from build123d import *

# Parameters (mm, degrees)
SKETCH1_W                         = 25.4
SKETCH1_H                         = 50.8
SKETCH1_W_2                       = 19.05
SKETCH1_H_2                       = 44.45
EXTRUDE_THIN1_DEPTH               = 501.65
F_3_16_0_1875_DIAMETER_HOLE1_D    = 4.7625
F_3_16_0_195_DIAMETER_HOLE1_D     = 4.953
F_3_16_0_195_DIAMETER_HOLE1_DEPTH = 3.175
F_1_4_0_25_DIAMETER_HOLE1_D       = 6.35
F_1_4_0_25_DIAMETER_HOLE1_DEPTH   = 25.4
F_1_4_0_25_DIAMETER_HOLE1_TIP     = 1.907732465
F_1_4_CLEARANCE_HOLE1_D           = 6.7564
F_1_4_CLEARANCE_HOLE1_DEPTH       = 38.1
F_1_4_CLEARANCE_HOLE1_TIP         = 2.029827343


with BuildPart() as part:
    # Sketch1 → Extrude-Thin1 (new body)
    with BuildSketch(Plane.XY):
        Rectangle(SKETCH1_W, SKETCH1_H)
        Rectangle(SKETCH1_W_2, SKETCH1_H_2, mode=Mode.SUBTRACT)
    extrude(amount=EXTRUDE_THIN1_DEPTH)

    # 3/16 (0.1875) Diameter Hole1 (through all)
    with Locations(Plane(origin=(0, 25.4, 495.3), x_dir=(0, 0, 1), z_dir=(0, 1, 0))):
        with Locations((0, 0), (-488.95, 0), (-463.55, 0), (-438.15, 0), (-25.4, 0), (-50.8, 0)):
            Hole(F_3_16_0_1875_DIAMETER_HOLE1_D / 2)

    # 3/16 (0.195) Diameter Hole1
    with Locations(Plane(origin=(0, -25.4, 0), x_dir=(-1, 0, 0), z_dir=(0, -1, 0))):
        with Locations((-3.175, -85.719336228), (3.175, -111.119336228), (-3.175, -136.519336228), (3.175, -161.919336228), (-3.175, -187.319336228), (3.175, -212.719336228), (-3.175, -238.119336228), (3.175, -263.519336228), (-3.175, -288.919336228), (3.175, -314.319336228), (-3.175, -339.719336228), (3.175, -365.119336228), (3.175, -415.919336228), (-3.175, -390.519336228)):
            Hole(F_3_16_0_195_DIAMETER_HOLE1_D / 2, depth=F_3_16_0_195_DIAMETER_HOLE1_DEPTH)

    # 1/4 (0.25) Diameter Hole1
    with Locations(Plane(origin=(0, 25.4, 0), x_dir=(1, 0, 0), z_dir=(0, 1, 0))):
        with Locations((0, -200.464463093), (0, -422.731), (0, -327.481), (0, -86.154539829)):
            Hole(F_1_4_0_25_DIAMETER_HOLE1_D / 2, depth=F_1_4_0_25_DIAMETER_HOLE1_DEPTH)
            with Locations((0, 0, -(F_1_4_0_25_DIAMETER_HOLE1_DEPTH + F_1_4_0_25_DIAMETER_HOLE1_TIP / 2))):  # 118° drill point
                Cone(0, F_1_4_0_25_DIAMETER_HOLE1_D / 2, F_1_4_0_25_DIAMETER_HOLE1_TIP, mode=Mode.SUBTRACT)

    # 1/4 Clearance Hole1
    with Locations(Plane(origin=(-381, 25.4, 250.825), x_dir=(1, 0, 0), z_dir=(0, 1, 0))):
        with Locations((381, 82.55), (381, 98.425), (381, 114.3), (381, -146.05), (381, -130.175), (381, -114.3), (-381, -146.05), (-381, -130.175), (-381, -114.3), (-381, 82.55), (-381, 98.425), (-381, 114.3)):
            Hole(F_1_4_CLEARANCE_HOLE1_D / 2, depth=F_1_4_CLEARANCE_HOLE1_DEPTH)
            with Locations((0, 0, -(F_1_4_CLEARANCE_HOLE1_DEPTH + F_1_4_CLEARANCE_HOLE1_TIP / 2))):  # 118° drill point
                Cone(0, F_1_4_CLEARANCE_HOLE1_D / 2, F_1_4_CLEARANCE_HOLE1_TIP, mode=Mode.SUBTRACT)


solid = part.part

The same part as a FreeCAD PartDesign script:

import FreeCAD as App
import Part
import Sketcher
Q = App.Units.Quantity

doc = App.newDocument("Part")
params = doc.addObject("Spreadsheet::Sheet", "Params")
for row, (alias, value) in enumerate([
    ("sketch1_width", "1 in"),
    ("sketch1_height", "2 in"),
    ("sketch1_width2", "0.75 in"),
    ("sketch1_height2", "1.75 in"),
    ("pad1_length", "19.75 in"),
    ("sketch2_diameter", "0.1875 in"),
    ("hole_diameter", "0.1875 in"),
    ("sketch3_diameter", "0.195 in"),
    ("hole2_diameter", "0.195 in"),
    ("hole2_depth", "0.125 in"),
    ("sketch4_diameter", "0.25 in"),
    ("hole3_diameter", "0.25 in"),
    ("hole3_depth", "1 in"),
    ("sketch5_diameter", "0.266 in"),
    ("hole4_diameter", "0.266 in"),
    ("hole4_depth", "1.5 in"),
], start=1):
    params.set(f"A{row}", alias)
    params.set(f"B{row}", "=" + value)
    params.setAlias(f"B{row}", alias)

body = doc.addObject("PartDesign::Body", "Body")

# Sketch on XY plane
sketch1 = body.newObject("Sketcher::SketchObject", "Sketch")
sketch1.AttachmentSupport = (doc.getObject("XY_Plane"), [""])
sketch1.MapMode = "FlatFace"
sketch1.addGeometry([
    Part.LineSegment(App.Vector(-13, 25, 0), App.Vector(-13, -25, 0)),  # 0
    Part.LineSegment(App.Vector(-13, -25, 0), App.Vector(13, -25, 0)),  # 1
    Part.LineSegment(App.Vector(13, -25, 0), App.Vector(13, 25, 0)),  # 2
    Part.LineSegment(App.Vector(13, 25, 0), App.Vector(-13, 25, 0)),  # 3
    Part.LineSegment(App.Vector(10, -22, 0), App.Vector(-10, -22, 0)),  # 4
    Part.LineSegment(App.Vector(-10, -22, 0), App.Vector(-10, 22, 0)),  # 5
    Part.LineSegment(App.Vector(-10, 22, 0), App.Vector(10, 22, 0)),  # 6
    Part.LineSegment(App.Vector(10, 22, 0), App.Vector(10, -22, 0)),  # 7
], False)
sketch1.addConstraint([
    Sketcher.Constraint("Coincident", 0, 2, 1, 1),
    Sketcher.Constraint("Coincident", 1, 2, 2, 1),
    Sketcher.Constraint("Coincident", 2, 2, 3, 1),
    Sketcher.Constraint("Coincident", 3, 2, 0, 1),
    Sketcher.Constraint("Coincident", 4, 2, 5, 1),
    Sketcher.Constraint("Coincident", 5, 2, 6, 1),
    Sketcher.Constraint("Coincident", 6, 2, 7, 1),
    Sketcher.Constraint("Coincident", 7, 2, 4, 1),
    Sketcher.Constraint("Vertical", 0),
    Sketcher.Constraint("Horizontal", 1),
    Sketcher.Constraint("Vertical", 2),
    Sketcher.Constraint("Horizontal", 3),
    Sketcher.Constraint("Horizontal", 4),
    Sketcher.Constraint("Vertical", 5),
    Sketcher.Constraint("Horizontal", 6),
    Sketcher.Constraint("Vertical", 7),
    Sketcher.Constraint("Symmetric", 0, 2, 2, 2, -1, 1),
    Sketcher.Constraint("Symmetric", 4, 2, 6, 2, -1, 1),
    Sketcher.Constraint("DistanceX", 1, 1, 1, 2, Q("1 in")),
    Sketcher.Constraint("DistanceY", 0, 2, 0, 1, Q("2 in")),
    Sketcher.Constraint("DistanceX", 4, 2, 4, 1, Q("0.75 in")),
    Sketcher.Constraint("DistanceY", 5, 1, 5, 2, Q("1.75 in")),
])
sketch1.setExpression("Constraints[18]", "Params.sketch1_width")
sketch1.setExpression("Constraints[19]", "Params.sketch1_height")
sketch1.setExpression("Constraints[20]", "Params.sketch1_width2")
sketch1.setExpression("Constraints[21]", "Params.sketch1_height2")
pad1 = body.newObject("PartDesign::Pad", "Pad")
pad1.Profile = sketch1
pad1.setExpression("Length", "Params.pad1_length")

# Sketch on XZ plane
sketch2 = body.newObject("Sketcher::SketchObject", "Sketch001")
sketch2.AttachmentSupport = (doc.getObject("XZ_Plane"), [""])
sketch2.MapMode = "FlatFace"
sketch2.AttachmentOffset = App.Placement(App.Vector(0, 0, -1 * 25.4), App.Rotation())
sketch2.addGeometry([
    Part.Circle(App.Vector(0, 495.3, 0), App.Vector(0, 0, 1), 2.4),  # 0
    Part.Circle(App.Vector(0, 6.3, 0), App.Vector(0, 0, 1), 2.4),  # 1
    Part.Circle(App.Vector(0, 31.8, 0), App.Vector(0, 0, 1), 2.4),  # 2
    Part.Circle(App.Vector(0, 57.1, 0), App.Vector(0, 0, 1), 2.4),  # 3
    Part.Circle(App.Vector(0, 469.9, 0), App.Vector(0, 0, 1), 2.4),  # 4
    Part.Circle(App.Vector(0, 444.5, 0), App.Vector(0, 0, 1), 2.4),  # 5
], False)
sketch2.addConstraint([
    Sketcher.Constraint("Equal", 0, 1),
    Sketcher.Constraint("Equal", 1, 2),
    Sketcher.Constraint("Equal", 2, 3),
    Sketcher.Constraint("Equal", 3, 4),
    Sketcher.Constraint("Equal", 4, 5),
    Sketcher.Constraint("PointOnObject", 0, 3, -2),
    Sketcher.Constraint("PointOnObject", 1, 3, -2),
    Sketcher.Constraint("PointOnObject", 2, 3, -2),
    Sketcher.Constraint("PointOnObject", 3, 3, -2),
    Sketcher.Constraint("PointOnObject", 4, 3, -2),
    Sketcher.Constraint("PointOnObject", 5, 3, -2),
    Sketcher.Constraint("Diameter", 0, Q("0.1875 in")),
    Sketcher.Constraint("DistanceY", 1, 3, 2, 3, Q("1 in")),
    Sketcher.Constraint("DistanceY", 2, 3, 3, 3, Q("1 in")),
    Sketcher.Constraint("DistanceY", 4, 3, 0, 3, Q("1 in")),
    Sketcher.Constraint("DistanceY", 5, 3, 4, 3, Q("1 in")),
    Sketcher.Constraint("DistanceY", -1, 1, 0, 3, Q("19.5 in")),
    Sketcher.Constraint("DistanceY", -1, 1, 1, 3, Q("0.25 in")),
])
sketch2.setExpression("Constraints[11]", "Params.sketch2_diameter")
doc.recompute()
hole = body.newObject("PartDesign::Hole", "Hole")
hole.Profile = sketch2
hole.ThreadType = "None"
hole.setExpression("Diameter", "Params.hole_diameter")
hole.DepthType = "ThroughAll"
hole.Reversed = True

# Sketch on XZ plane
sketch3 = body.newObject("Sketcher::SketchObject", "Sketch002")
sketch3.AttachmentSupport = (doc.getObject("XZ_Plane"), [""])
sketch3.MapMode = "FlatFace"
sketch3.AttachmentOffset = App.Placement(App.Vector(0, 0, 1 * 25.4), App.Rotation())
sketch3.addGeometry([
    Part.Circle(App.Vector(3.2, 85.7, 0), App.Vector(0, 0, 1), 2.5),  # 0
    Part.Circle(App.Vector(-3.2, 111.1, 0), App.Vector(0, 0, 1), 2.5),  # 1
    Part.Circle(App.Vector(3.2, 136.5, 0), App.Vector(0, 0, 1), 2.5),  # 2
    Part.Circle(App.Vector(-3.2, 161.9, 0), App.Vector(0, 0, 1), 2.5),  # 3
    Part.Circle(App.Vector(3.2, 187.3, 0), App.Vector(0, 0, 1), 2.5),  # 4
    Part.Circle(App.Vector(-3.2, 212.7, 0), App.Vector(0, 0, 1), 2.5),  # 5
    Part.Circle(App.Vector(3.2, 238.1, 0), App.Vector(0, 0, 1), 2.5),  # 6
    Part.Circle(App.Vector(-3.2, 263.5, 0), App.Vector(0, 0, 1), 2.5),  # 7
    Part.Circle(App.Vector(3.2, 288.9, 0), App.Vector(0, 0, 1), 2.5),  # 8
    Part.Circle(App.Vector(-3.2, 314.3, 0), App.Vector(0, 0, 1), 2.5),  # 9
    Part.Circle(App.Vector(3.2, 339.7, 0), App.Vector(0, 0, 1), 2.5),  # 10
    Part.Circle(App.Vector(-3.2, 365.1, 0), App.Vector(0, 0, 1), 2.5),  # 11
    Part.Circle(App.Vector(-3.2, 415.9, 0), App.Vector(0, 0, 1), 2.5),  # 12
    Part.Circle(App.Vector(3.2, 390.5, 0), App.Vector(0, 0, 1), 2.5),  # 13
], False)
sketch3.addConstraint([
    Sketcher.Constraint("Equal", 0, 1),
    Sketcher.Constraint("Equal", 1, 2),
    Sketcher.Constraint("Equal", 2, 3),
    Sketcher.Constraint("Equal", 3, 4),
    Sketcher.Constraint("Equal", 4, 5),
    Sketcher.Constraint("Equal", 5, 6),
    Sketcher.Constraint("Equal", 6, 7),
    Sketcher.Constraint("Equal", 7, 8),
    Sketcher.Constraint("Equal", 8, 9),
    Sketcher.Constraint("Equal", 9, 10),
    Sketcher.Constraint("Equal", 10, 11),
    Sketcher.Constraint("Equal", 11, 12),
    Sketcher.Constraint("Equal", 12, 13),
    Sketcher.Constraint("Vertical", 0, 3, 2, 3),
    Sketcher.Constraint("Vertical", 1, 3, 3, 3),
    Sketcher.Constraint("Vertical", 2, 3, 4, 3),
    Sketcher.Constraint("Vertical", 3, 3, 5, 3),
    Sketcher.Constraint("Vertical", 4, 3, 6, 3),
    Sketcher.Constraint("Vertical", 5, 3, 7, 3),
    Sketcher.Constraint("Vertical", 6, 3, 8, 3),
    Sketcher.Constraint("Vertical", 7, 3, 9, 3),
    Sketcher.Constraint("Vertical", 8, 3, 10, 3),
    Sketcher.Constraint("Vertical", 9, 3, 11, 3),
    Sketcher.Constraint("Vertical", 11, 3, 12, 3),
    Sketcher.Constraint("Vertical", 10, 3, 13, 3),
    Sketcher.Constraint("Diameter", 0, Q("0.195 in")),
    Sketcher.Constraint("DistanceY", 0, 3, 1, 3, Q("1 in")),
    Sketcher.Constraint("DistanceY", 1, 3, 2, 3, Q("1 in")),
    Sketcher.Constraint("DistanceY", 2, 3, 3, 3, Q("1 in")),
    Sketcher.Constraint("DistanceY", 3, 3, 4, 3, Q("1 in")),
    Sketcher.Constraint("DistanceY", 4, 3, 5, 3, Q("1 in")),
    Sketcher.Constraint("DistanceY", 5, 3, 6, 3, Q("1 in")),
    Sketcher.Constraint("DistanceY", 6, 3, 7, 3, Q("1 in")),
    Sketcher.Constraint("DistanceY", 7, 3, 8, 3, Q("1 in")),
    Sketcher.Constraint("DistanceY", 8, 3, 9, 3, Q("1 in")),
    Sketcher.Constraint("DistanceY", 9, 3, 10, 3, Q("1 in")),
    Sketcher.Constraint("DistanceY", 10, 3, 11, 3, Q("1 in")),
    Sketcher.Constraint("DistanceY", 11, 3, 12, 3, Q("2 in")),
    Sketcher.Constraint("DistanceY", 11, 3, 13, 3, Q("1 in")),
    Sketcher.Constraint("DistanceX", 1, 3, 0, 3, Q("0.25 in")),
    Sketcher.Constraint("DistanceX", -1, 1, 0, 3, Q("0.125 in")),
    Sketcher.Constraint("DistanceY", -1, 1, 0, 3, 85.719336),
])
sketch3.setExpression("Constraints[25]", "Params.sketch3_diameter")
doc.recompute()
hole2 = body.newObject("PartDesign::Hole", "Hole001")
hole2.Profile = sketch3
hole2.ThreadType = "None"
hole2.setExpression("Diameter", "Params.hole2_diameter")
hole2.DepthType = "Dimension"
hole2.setExpression("Depth", "Params.hole2_depth")
hole2.DrillPoint = "Flat"

# Sketch on XZ plane
sketch4 = body.newObject("Sketcher::SketchObject", "Sketch003")
sketch4.AttachmentSupport = (doc.getObject("XZ_Plane"), [""])
sketch4.MapMode = "FlatFace"
sketch4.AttachmentOffset = App.Placement(App.Vector(0, 0, -1 * 25.4), App.Rotation())
sketch4.addGeometry([
    Part.Circle(App.Vector(0, 200.5, 0), App.Vector(0, 0, 1), 3.2),
    Part.Circle(App.Vector(0, 422.7, 0), App.Vector(0, 0, 1), 3.2),
    Part.Circle(App.Vector(0, 327.5, 0), App.Vector(0, 0, 1), 3.2),
    Part.Circle(App.Vector(0, 86.2, 0), App.Vector(0, 0, 1), 3.2),
], False)
sketch4.addConstraint([
    Sketcher.Constraint("Equal", 0, 1),
    Sketcher.Constraint("Equal", 1, 2),
    Sketcher.Constraint("Equal", 2, 3),
    Sketcher.Constraint("PointOnObject", 0, 3, -2),
    Sketcher.Constraint("PointOnObject", 1, 3, -2),
    Sketcher.Constraint("PointOnObject", 2, 3, -2),
    Sketcher.Constraint("PointOnObject", 3, 3, -2),
    Sketcher.Constraint("Diameter", 0, Q("0.25 in")),
    Sketcher.Constraint("DistanceY", 2, 3, 1, 3, Q("3.75 in")),
    Sketcher.Constraint("DistanceY", -1, 1, 1, 3, 422.731),
    Sketcher.Constraint("DistanceY", -1, 1, 3, 3, 86.15454),
    Sketcher.Constraint("DistanceY", -1, 1, 0, 3, 200.464463),
])
sketch4.setExpression("Constraints[7]", "Params.sketch4_diameter")
doc.recompute()
hole3 = body.newObject("PartDesign::Hole", "Hole002")
hole3.Profile = sketch4
hole3.ThreadType = "None"
hole3.setExpression("Diameter", "Params.hole3_diameter")
hole3.DepthType = "Dimension"
hole3.setExpression("Depth", "Params.hole3_depth")
hole3.DrillPoint = "Angled"
hole3.DrillPointAngle = 118
hole3.Reversed = True

# Sketch on XZ plane
sketch5 = body.newObject("Sketcher::SketchObject", "Sketch004")
sketch5.AttachmentSupport = (doc.getObject("XZ_Plane"), [""])
sketch5.MapMode = "FlatFace"
sketch5.AttachmentOffset = App.Placement(App.Vector(0, 0, -1 * 25.4), App.Rotation())
sketch5.addGeometry([
    Part.Circle(App.Vector(0, 168.3, 0), App.Vector(0, 0, 1), 3.4),  # 0
    Part.Circle(App.Vector(0, 152.4, 0), App.Vector(0, 0, 1), 3.4),  # 1
    Part.Circle(App.Vector(0, 136.5, 0), App.Vector(0, 0, 1), 3.4),  # 2
    Part.Circle(App.Vector(0, 396.9, 0), App.Vector(0, 0, 1), 3.4),  # 3
    Part.Circle(App.Vector(0, 381, 0), App.Vector(0, 0, 1), 3.4),  # 4
    Part.Circle(App.Vector(0, 365.1, 0), App.Vector(0, 0, 1), 3.4),  # 5
    Part.Circle(App.Vector(-762, 396.9, 0), App.Vector(0, 0, 1), 3.4),  # 6
    Part.Circle(App.Vector(-762, 381, 0), App.Vector(0, 0, 1), 3.4),  # 7
    Part.Circle(App.Vector(-762, 365.1, 0), App.Vector(0, 0, 1), 3.4),  # 8
    Part.Circle(App.Vector(-762, 168.3, 0), App.Vector(0, 0, 1), 3.4),  # 9
    Part.Circle(App.Vector(-762, 152.4, 0), App.Vector(0, 0, 1), 3.4),  # 10
    Part.Circle(App.Vector(-762, 136.5, 0), App.Vector(0, 0, 1), 3.4),  # 11
], False)
sketch5.addConstraint([
    Sketcher.Constraint("Equal", 0, 1),
    Sketcher.Constraint("Equal", 1, 2),
    Sketcher.Constraint("Equal", 2, 3),
    Sketcher.Constraint("Equal", 3, 4),
    Sketcher.Constraint("Equal", 4, 5),
    Sketcher.Constraint("Equal", 5, 6),
    Sketcher.Constraint("Equal", 6, 7),
    Sketcher.Constraint("Equal", 7, 8),
    Sketcher.Constraint("Equal", 8, 9),
    Sketcher.Constraint("Equal", 9, 10),
    Sketcher.Constraint("Equal", 10, 11),
    Sketcher.Constraint("PointOnObject", 0, 3, -2),
    Sketcher.Constraint("PointOnObject", 1, 3, -2),
    Sketcher.Constraint("PointOnObject", 2, 3, -2),
    Sketcher.Constraint("PointOnObject", 3, 3, -2),
    Sketcher.Constraint("PointOnObject", 4, 3, -2),
    Sketcher.Constraint("PointOnObject", 5, 3, -2),
    Sketcher.Constraint("Horizontal", 3, 3, 6, 3),
    Sketcher.Constraint("Horizontal", 4, 3, 7, 3),
    Sketcher.Constraint("Horizontal", 5, 3, 8, 3),
    Sketcher.Constraint("Horizontal", 0, 3, 9, 3),
    Sketcher.Constraint("Horizontal", 1, 3, 10, 3),
    Sketcher.Constraint("Horizontal", 2, 3, 11, 3),
    Sketcher.Constraint("Vertical", 6, 3, 7, 3),
    Sketcher.Constraint("Vertical", 7, 3, 8, 3),
    Sketcher.Constraint("Vertical", 8, 3, 9, 3),
    Sketcher.Constraint("Vertical", 9, 3, 10, 3),
    Sketcher.Constraint("Vertical", 10, 3, 11, 3),
    Sketcher.Constraint("Diameter", 0, Q("0.266 in")),
    Sketcher.Constraint("DistanceY", -1, 1, 1, 3, Q("6 in")),
    Sketcher.Constraint("DistanceY", -1, 1, 4, 3, Q("15 in")),
    Sketcher.Constraint("DistanceX", 6, 3, -1, 1, Q("30 in")),
    Sketcher.Constraint("DistanceY", 0, 3, 3, 3, Q("9 in")),
    Sketcher.Constraint("DistanceY", 2, 3, 5, 3, Q("9 in")),
    Sketcher.Constraint("DistanceY", 2, 3, 0, 3, Q("1.25 in")),
    Sketcher.Constraint("DistanceY", -1, 1, 0, 3, Q("6.625 in")),
])
sketch5.setExpression("Constraints[28]", "Params.sketch5_diameter")
doc.recompute()
hole4 = body.newObject("PartDesign::Hole", "Hole003")
hole4.Profile = sketch5
hole4.ThreadType = "None"
hole4.setExpression("Diameter", "Params.hole4_diameter")
hole4.DepthType = "Dimension"
hole4.setExpression("Depth", "Params.hole4_depth")
hole4.DrillPoint = "Angled"
hole4.DrillPointAngle = 118
hole4.Reversed = True

doc.recompute()
